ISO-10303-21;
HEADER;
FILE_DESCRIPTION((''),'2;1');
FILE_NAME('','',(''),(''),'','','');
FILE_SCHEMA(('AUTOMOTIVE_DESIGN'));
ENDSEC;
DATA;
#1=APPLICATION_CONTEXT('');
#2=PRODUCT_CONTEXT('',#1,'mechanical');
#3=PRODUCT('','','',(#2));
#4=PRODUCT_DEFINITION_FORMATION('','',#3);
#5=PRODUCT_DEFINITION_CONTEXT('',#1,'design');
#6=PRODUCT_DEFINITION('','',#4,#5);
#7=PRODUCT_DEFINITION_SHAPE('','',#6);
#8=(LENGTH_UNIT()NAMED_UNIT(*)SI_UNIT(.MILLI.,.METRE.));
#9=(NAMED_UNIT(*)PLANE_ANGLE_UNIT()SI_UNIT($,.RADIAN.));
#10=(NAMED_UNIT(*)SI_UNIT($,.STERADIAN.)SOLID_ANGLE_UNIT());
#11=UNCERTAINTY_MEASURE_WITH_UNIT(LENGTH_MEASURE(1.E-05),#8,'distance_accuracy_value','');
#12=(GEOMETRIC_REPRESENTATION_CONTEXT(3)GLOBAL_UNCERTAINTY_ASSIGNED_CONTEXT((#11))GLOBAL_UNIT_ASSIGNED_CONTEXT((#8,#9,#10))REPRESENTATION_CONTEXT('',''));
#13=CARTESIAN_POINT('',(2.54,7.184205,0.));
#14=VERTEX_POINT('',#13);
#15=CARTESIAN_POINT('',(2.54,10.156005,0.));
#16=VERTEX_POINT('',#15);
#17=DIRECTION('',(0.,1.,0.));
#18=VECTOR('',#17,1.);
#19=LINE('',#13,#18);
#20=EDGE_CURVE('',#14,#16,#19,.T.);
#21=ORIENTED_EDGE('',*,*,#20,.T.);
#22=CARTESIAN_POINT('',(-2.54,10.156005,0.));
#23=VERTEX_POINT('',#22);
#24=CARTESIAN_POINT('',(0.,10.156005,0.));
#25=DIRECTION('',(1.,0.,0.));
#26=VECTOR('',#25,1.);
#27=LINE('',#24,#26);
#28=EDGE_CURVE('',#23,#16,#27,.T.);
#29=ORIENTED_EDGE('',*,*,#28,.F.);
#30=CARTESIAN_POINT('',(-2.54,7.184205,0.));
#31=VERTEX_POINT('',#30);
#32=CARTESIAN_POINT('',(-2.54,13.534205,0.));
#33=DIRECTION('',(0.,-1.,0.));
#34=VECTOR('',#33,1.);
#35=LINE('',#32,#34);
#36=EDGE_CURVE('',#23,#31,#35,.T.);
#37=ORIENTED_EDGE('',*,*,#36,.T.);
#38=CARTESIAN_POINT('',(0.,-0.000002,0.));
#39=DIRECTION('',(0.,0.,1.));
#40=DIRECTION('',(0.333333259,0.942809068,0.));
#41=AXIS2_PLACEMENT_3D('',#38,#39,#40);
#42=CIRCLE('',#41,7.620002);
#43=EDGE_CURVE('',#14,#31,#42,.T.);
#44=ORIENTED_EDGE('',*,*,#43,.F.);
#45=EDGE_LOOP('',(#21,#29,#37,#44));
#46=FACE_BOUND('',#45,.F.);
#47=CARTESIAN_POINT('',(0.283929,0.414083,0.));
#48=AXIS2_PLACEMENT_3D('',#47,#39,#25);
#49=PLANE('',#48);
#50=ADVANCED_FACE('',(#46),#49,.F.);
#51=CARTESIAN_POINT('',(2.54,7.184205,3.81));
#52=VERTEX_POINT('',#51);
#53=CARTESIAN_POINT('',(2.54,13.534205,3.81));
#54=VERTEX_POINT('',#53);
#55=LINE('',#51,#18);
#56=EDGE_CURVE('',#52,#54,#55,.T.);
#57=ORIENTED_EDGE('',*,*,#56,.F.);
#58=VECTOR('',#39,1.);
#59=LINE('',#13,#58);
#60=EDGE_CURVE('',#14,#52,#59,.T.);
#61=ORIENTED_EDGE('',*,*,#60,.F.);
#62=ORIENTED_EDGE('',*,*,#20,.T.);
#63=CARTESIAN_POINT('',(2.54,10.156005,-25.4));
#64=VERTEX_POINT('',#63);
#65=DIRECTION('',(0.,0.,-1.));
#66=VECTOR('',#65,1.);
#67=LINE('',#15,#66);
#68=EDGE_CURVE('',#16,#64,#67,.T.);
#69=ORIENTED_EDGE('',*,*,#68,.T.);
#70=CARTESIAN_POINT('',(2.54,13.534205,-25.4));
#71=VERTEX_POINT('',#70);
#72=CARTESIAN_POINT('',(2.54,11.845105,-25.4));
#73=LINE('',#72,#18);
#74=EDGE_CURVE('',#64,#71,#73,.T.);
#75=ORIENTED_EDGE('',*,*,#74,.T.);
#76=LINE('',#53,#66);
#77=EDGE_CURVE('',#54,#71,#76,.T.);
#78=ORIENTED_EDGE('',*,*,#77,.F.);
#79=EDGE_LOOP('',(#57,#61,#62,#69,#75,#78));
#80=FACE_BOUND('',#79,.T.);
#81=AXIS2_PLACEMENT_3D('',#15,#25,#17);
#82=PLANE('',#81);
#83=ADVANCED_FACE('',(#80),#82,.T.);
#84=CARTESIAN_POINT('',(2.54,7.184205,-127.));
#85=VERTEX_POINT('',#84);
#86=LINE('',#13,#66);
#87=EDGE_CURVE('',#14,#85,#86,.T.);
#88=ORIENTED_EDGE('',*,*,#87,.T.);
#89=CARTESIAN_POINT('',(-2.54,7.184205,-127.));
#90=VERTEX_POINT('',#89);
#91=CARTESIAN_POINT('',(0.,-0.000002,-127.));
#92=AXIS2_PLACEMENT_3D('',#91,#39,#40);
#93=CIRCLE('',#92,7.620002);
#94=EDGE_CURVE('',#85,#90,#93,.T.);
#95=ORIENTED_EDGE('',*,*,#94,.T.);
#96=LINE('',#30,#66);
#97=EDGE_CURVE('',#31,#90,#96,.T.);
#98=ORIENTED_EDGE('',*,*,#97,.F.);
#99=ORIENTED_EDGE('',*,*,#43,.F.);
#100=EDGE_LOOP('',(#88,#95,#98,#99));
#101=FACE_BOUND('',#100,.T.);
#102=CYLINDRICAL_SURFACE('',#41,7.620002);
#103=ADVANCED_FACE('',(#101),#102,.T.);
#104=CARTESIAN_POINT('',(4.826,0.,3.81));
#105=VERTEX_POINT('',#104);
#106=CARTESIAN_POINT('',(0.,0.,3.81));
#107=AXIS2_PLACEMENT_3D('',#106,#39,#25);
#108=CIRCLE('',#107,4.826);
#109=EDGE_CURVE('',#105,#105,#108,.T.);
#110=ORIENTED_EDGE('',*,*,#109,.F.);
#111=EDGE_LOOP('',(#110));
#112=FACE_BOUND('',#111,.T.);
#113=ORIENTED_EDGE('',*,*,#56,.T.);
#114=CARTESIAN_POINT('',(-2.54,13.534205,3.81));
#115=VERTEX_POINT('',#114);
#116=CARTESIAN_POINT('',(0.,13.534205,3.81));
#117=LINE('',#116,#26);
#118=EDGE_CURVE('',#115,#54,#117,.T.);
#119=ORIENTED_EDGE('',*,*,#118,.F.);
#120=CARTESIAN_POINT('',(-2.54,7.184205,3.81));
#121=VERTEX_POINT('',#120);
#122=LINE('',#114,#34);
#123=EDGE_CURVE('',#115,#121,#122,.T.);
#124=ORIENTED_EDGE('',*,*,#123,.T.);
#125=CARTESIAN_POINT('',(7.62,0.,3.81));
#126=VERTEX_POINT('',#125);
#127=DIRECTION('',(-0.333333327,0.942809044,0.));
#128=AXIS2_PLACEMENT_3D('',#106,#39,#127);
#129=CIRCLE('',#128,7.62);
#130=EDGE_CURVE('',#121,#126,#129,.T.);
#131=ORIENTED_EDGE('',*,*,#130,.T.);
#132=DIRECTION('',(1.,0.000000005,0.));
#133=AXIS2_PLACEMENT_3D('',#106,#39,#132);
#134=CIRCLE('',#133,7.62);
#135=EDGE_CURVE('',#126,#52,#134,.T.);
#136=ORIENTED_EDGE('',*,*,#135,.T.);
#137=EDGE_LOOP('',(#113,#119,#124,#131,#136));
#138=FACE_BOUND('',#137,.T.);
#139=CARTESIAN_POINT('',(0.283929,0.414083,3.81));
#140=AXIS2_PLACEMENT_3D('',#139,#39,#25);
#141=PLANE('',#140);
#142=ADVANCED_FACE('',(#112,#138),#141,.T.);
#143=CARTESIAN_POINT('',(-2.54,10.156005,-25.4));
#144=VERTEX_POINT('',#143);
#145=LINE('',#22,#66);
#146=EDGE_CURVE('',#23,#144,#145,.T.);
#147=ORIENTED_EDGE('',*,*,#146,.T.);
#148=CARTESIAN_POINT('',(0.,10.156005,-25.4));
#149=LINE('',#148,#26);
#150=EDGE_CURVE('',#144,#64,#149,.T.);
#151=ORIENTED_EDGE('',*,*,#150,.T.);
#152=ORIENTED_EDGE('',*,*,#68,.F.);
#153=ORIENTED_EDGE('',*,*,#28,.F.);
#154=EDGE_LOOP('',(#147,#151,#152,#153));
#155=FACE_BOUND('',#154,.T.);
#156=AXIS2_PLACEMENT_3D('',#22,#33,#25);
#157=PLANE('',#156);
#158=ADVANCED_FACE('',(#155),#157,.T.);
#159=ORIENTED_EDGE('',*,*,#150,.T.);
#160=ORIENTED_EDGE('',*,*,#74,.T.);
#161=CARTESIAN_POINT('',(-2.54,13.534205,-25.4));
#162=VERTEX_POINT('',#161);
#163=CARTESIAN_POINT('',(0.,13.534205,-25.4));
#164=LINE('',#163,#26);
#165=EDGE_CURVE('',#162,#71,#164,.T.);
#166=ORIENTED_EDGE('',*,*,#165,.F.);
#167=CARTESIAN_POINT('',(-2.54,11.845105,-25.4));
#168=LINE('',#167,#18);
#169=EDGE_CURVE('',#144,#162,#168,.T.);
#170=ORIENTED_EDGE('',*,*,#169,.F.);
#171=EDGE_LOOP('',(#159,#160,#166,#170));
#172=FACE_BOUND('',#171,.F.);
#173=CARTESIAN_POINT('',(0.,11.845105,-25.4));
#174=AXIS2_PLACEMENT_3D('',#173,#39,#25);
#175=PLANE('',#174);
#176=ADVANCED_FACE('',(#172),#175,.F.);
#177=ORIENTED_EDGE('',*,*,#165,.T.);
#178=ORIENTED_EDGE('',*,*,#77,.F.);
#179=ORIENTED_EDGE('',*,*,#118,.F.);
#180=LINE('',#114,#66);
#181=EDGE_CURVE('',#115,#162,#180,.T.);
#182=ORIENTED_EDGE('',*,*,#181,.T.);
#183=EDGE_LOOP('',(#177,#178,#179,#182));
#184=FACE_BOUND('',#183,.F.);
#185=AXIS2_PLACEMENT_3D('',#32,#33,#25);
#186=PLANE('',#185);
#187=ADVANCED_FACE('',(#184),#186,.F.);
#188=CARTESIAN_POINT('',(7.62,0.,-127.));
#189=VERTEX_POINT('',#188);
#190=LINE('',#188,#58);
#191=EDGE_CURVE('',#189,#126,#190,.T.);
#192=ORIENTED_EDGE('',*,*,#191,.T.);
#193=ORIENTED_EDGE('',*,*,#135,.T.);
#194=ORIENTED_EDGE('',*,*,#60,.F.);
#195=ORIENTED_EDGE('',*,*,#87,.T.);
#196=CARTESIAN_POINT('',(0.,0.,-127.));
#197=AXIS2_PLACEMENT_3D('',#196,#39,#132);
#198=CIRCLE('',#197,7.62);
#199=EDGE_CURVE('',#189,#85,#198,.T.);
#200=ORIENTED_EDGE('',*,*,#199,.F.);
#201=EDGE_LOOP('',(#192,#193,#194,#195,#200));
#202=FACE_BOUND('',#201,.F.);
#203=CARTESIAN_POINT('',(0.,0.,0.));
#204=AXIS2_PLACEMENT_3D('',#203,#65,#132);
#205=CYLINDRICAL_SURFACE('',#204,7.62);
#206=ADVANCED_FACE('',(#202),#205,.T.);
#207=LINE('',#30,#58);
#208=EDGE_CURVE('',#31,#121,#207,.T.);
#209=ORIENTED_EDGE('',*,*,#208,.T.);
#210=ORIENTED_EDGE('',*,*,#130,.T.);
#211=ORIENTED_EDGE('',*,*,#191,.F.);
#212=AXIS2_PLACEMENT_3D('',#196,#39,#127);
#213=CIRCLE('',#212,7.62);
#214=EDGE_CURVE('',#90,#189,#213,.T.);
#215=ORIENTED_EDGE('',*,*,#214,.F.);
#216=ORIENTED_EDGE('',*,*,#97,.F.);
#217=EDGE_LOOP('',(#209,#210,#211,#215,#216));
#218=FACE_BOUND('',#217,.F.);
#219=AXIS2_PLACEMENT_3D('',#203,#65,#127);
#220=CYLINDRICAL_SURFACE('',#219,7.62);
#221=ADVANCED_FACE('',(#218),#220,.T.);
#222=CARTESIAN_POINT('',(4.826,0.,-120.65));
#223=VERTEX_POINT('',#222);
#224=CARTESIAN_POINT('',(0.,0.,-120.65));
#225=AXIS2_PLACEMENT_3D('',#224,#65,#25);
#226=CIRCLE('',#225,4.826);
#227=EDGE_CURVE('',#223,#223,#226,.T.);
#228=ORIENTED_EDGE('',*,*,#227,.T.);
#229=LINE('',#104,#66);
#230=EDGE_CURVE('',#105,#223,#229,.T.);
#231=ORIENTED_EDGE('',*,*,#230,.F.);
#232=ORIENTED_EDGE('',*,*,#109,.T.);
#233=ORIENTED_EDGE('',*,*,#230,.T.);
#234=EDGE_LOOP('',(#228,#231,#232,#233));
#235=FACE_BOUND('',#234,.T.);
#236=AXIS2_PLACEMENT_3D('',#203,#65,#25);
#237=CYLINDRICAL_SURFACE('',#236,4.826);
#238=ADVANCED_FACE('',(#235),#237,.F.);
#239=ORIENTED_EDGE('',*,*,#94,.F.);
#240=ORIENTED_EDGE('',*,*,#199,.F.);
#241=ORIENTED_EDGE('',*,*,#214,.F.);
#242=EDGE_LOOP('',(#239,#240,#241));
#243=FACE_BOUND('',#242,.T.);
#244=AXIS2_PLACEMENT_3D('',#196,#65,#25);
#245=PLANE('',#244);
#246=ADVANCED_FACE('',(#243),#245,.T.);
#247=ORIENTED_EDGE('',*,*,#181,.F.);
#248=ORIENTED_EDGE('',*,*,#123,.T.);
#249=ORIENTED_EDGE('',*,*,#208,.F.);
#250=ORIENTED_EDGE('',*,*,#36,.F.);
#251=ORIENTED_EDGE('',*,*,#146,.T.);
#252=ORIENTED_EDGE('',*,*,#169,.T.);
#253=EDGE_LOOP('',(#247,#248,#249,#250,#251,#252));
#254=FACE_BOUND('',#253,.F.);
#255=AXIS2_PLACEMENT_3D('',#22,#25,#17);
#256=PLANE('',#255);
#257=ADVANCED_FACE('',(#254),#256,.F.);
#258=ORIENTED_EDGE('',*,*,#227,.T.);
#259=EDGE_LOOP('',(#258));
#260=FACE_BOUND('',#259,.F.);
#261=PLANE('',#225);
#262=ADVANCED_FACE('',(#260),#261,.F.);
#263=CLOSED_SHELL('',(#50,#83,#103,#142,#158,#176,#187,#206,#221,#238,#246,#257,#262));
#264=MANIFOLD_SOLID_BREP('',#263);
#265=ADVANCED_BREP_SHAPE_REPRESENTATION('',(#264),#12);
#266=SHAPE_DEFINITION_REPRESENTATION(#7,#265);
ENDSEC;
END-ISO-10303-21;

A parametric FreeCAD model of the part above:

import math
import FreeCAD as App
import Part
import Sketcher
from FreeCAD import Vector
Q = App.Units.Quantity


def add_polygon(sketch, points):
    """Adds a closed chain of lines whose ends are joined by coincident constraints."""
    first, n = sketch.GeometryCount, len(points)
    for a, b in zip(points, points[1:] + points[:1]):
        sketch.addGeometry(Part.LineSegment(App.Vector(*a, 0), App.Vector(*b, 0)), False)
    for i in range(n):
        sketch.addConstraint(Sketcher.Constraint("Coincident", first + i, 2, first + (i + 1) % n, 1))

doc = App.newDocument("Part")
params = doc.addObject("Spreadsheet::Sheet", "Params")
for row, (alias, value) in enumerate([
    ("sketch1_radius", "0.3 in"),
    ("sketch1_diameter", "0.38 in"),
    ("pad1_length", "5 in"),
    ("sketch2_radius", "0.3 in"),
    ("sketch2_diameter", "0.38 in"),
    ("sketch2_width", "0.2 in"),
    ("sketch2_height", "0.25 in"),
    ("pad2_length", "0.15 in"),
    ("sketch3_width", "0.2 in"),
    ("sketch3_height", "0.133 in"),
    ("pad3_length", "1 in"),
    ("sketch4_diameter", "0.38 in"),
    ("pad4_length", "0.25 in"),
], start=1):
    params.set(f"A{row}", alias)
    params.set(f"B{row}", "=" + value)
    params.setAlias(f"B{row}", alias)

body = doc.addObject("PartDesign::Body", "Body")

sketch1 = body.newObject("Sketcher::SketchObject", "Sketch")
sketch1.AttachmentSupport = (doc.getObject("XY_Plane"), [""])
sketch1.MapMode = "FlatFace"
sketch1.addGeometry([
    Part.ArcOfCircle(Part.Circle(Vector(0, 0, 0), Vector(0, 0, 1), 7.6), math.radians(109), math.radians(360)),
    Part.ArcOfCircle(Part.Circle(Vector(0, 0, 0), Vector(0, 0, 1), 7.6), math.radians(0), math.radians(71)),
    Part.ArcOfCircle(Part.Circle(Vector(0, 0, 0), Vector(0, 0, 1), 7.6), math.radians(71), math.radians(109)),
    Part.Circle(Vector(0, 0, 0), Vector(0, 0, 1), 4.8),
], False)
sketch1.addConstraint([
    Sketcher.Constraint("Tangent", 0, 2, 1, 1),
    Sketcher.Constraint("Tangent", 1, 2, 2, 1),
    Sketcher.Constraint("Tangent", 2, 2, 0, 1),
    Sketcher.Constraint("Coincident", 0, 3, -1, 1),
    Sketcher.Constraint("Coincident", 3, 3, -1, 1),
    Sketcher.Constraint("PointOnObject", 0, 2, -1),
    Sketcher.Constraint("Horizontal", 1, 2, 2, 2),
    Sketcher.Constraint("Radius", 0, Q("0.3 in")),
    Sketcher.Constraint("Diameter", 3, Q("0.38 in")),
    Sketcher.Constraint("DistanceX", -1, 1, 1, 2, Q("0.1 in")),
])
sketch1.setExpression("Constraints[7]", "Params.sketch1_radius")
sketch1.setExpression("Constraints[8]", "Params.sketch1_diameter")
pad1 = body.newObject("PartDesign::Pad", "Pad")
pad1.Profile = sketch1
pad1.setExpression("Length", "Params.pad1_length")
pad1.Reversed = True

sketch2 = body.newObject("Sketcher::SketchObject", "Sketch001")
sketch2.AttachmentSupport = (doc.getObject("XY_Plane"), [""])
sketch2.MapMode = "FlatFace"
sketch2.addGeometry([
    Part.ArcOfCircle(Part.Circle(Vector(0, 0, 0), Vector(0, 0, 1), 7.6), math.radians(109), math.radians(360)),
    Part.ArcOfCircle(Part.Circle(Vector(0, 0, 0), Vector(0, 0, 1), 7.6), math.radians(0), math.radians(71)),
    Part.LineSegment(Vector(2.5, 7.2, 0), Vector(2.5, 13.5, 0)),
    Part.LineSegment(Vector(2.5, 13.5, 0), Vector(-2.5, 13.5, 0)),
    Part.LineSegment(Vector(-2.5, 13.5, 0), Vector(-2.5, 7.2, 0)),
    Part.Circle(Vector(0, 0, 0), Vector(0, 0, 1), 4.8),
], False)
sketch2.addConstraint([
    Sketcher.Constraint("Tangent", 0, 2, 1, 1),
    Sketcher.Constraint("Coincident", 1, 2, 2, 1),
    Sketcher.Constraint("Coincident", 2, 2, 3, 1),
    Sketcher.Constraint("Coincident", 3, 2, 4, 1),
    Sketcher.Constraint("Coincident", 4, 2, 0, 1),
    Sketcher.Constraint("Vertical", 2),
    Sketcher.Constraint("Horizontal", 3),
    Sketcher.Constraint("Vertical", 4),
    Sketcher.Constraint("Coincident", 0, 3, -1, 1),
    Sketcher.Constraint("Coincident", 5, 3, -1, 1),
    Sketcher.Constraint("Equal", 0, 1),
    Sketcher.Constraint("PointOnObject", 0, 2, -1),
    Sketcher.Constraint("Horizontal", 1, 2, 4, 2),
    Sketcher.Constraint("Radius", 0, Q("0.3 in")),
    Sketcher.Constraint("Diameter", 5, Q("0.38 in")),
    Sketcher.Constraint("DistanceX", 3, 2, 3, 1, Q("0.2 in")),
    Sketcher.Constraint("DistanceY", 2, 1, 2, 2, Q("0.25 in")),
])
sketch2.setExpression("Constraints[13]", "Params.sketch2_radius")
sketch2.setExpression("Constraints[14]", "Params.sketch2_diameter")
sketch2.setExpression("Constraints[15]", "Params.sketch2_width")
sketch2.setExpression("Constraints[16]", "Params.sketch2_height")
pad2 = body.newObject("PartDesign::Pad", "Pad001")
pad2.Profile = sketch2
pad2.setExpression("Length", "Params.pad2_length")

sketch3 = body.newObject("Sketcher::SketchObject", "Sketch002")
sketch3.AttachmentSupport = (doc.getObject("XY_Plane"), [""])
sketch3.MapMode = "FlatFace"
add_polygon(sketch3, [(-2.5, 13.5), (-2.5, 10.2), (2.5, 10.2), (2.5, 13.5)])
sketch3.addConstraint([
    Sketcher.Constraint("Vertical", 0),
    Sketcher.Constraint("Horizontal", 1),
    Sketcher.Constraint("Vertical", 2),
    Sketcher.Constraint("Horizontal", 3),
    Sketcher.Constraint("DistanceX", 1, 1, 1, 2, Q("0.2 in")),
    Sketcher.Constraint("DistanceX", 0, 2, -1, 1, Q("0.1 in")),
    Sketcher.Constraint("DistanceY", 0, 2, 0, 1, Q("0.133 in")),
    Sketcher.Constraint("DistanceY", -1, 1, 0, 2, Q("10.156005 mm")),
])
sketch3.setExpression("Constraints[8]", "Params.sketch3_width")
sketch3.setExpression("Constraints[10]", "Params.sketch3_height")
pad3 = body.newObject("PartDesign::Pad", "Pad002")
pad3.Profile = sketch3
pad3.setExpression("Length", "Params.pad3_length")
pad3.Reversed = True

sketch4 = body.newObject("Sketcher::SketchObject", "Sketch003")
sketch4.AttachmentSupport = (doc.getObject("XY_Plane"), [""])
sketch4.MapMode = "FlatFace"
sketch4.AttachmentOffset = App.Placement(Vector(0, 0, -5 * 25.4), App.Rotation())
sketch4.addGeometry(Part.Circle(Vector(0, 0, 0), Vector(0, 0, 1), 4.8), False)
sketch4.addConstraint([
    Sketcher.Constraint("Coincident", 0, 3, -1, 1),
    Sketcher.Constraint("Diameter", 0, Q("0.38 in")),
])
sketch4.setExpression("Constraints[1]", "Params.sketch4_diameter")
pad4 = body.newObject("PartDesign::Pad", "Pad003")
pad4.Profile = sketch4
pad4.setExpression("Length", "Params.pad4_length")

doc.recompute()
